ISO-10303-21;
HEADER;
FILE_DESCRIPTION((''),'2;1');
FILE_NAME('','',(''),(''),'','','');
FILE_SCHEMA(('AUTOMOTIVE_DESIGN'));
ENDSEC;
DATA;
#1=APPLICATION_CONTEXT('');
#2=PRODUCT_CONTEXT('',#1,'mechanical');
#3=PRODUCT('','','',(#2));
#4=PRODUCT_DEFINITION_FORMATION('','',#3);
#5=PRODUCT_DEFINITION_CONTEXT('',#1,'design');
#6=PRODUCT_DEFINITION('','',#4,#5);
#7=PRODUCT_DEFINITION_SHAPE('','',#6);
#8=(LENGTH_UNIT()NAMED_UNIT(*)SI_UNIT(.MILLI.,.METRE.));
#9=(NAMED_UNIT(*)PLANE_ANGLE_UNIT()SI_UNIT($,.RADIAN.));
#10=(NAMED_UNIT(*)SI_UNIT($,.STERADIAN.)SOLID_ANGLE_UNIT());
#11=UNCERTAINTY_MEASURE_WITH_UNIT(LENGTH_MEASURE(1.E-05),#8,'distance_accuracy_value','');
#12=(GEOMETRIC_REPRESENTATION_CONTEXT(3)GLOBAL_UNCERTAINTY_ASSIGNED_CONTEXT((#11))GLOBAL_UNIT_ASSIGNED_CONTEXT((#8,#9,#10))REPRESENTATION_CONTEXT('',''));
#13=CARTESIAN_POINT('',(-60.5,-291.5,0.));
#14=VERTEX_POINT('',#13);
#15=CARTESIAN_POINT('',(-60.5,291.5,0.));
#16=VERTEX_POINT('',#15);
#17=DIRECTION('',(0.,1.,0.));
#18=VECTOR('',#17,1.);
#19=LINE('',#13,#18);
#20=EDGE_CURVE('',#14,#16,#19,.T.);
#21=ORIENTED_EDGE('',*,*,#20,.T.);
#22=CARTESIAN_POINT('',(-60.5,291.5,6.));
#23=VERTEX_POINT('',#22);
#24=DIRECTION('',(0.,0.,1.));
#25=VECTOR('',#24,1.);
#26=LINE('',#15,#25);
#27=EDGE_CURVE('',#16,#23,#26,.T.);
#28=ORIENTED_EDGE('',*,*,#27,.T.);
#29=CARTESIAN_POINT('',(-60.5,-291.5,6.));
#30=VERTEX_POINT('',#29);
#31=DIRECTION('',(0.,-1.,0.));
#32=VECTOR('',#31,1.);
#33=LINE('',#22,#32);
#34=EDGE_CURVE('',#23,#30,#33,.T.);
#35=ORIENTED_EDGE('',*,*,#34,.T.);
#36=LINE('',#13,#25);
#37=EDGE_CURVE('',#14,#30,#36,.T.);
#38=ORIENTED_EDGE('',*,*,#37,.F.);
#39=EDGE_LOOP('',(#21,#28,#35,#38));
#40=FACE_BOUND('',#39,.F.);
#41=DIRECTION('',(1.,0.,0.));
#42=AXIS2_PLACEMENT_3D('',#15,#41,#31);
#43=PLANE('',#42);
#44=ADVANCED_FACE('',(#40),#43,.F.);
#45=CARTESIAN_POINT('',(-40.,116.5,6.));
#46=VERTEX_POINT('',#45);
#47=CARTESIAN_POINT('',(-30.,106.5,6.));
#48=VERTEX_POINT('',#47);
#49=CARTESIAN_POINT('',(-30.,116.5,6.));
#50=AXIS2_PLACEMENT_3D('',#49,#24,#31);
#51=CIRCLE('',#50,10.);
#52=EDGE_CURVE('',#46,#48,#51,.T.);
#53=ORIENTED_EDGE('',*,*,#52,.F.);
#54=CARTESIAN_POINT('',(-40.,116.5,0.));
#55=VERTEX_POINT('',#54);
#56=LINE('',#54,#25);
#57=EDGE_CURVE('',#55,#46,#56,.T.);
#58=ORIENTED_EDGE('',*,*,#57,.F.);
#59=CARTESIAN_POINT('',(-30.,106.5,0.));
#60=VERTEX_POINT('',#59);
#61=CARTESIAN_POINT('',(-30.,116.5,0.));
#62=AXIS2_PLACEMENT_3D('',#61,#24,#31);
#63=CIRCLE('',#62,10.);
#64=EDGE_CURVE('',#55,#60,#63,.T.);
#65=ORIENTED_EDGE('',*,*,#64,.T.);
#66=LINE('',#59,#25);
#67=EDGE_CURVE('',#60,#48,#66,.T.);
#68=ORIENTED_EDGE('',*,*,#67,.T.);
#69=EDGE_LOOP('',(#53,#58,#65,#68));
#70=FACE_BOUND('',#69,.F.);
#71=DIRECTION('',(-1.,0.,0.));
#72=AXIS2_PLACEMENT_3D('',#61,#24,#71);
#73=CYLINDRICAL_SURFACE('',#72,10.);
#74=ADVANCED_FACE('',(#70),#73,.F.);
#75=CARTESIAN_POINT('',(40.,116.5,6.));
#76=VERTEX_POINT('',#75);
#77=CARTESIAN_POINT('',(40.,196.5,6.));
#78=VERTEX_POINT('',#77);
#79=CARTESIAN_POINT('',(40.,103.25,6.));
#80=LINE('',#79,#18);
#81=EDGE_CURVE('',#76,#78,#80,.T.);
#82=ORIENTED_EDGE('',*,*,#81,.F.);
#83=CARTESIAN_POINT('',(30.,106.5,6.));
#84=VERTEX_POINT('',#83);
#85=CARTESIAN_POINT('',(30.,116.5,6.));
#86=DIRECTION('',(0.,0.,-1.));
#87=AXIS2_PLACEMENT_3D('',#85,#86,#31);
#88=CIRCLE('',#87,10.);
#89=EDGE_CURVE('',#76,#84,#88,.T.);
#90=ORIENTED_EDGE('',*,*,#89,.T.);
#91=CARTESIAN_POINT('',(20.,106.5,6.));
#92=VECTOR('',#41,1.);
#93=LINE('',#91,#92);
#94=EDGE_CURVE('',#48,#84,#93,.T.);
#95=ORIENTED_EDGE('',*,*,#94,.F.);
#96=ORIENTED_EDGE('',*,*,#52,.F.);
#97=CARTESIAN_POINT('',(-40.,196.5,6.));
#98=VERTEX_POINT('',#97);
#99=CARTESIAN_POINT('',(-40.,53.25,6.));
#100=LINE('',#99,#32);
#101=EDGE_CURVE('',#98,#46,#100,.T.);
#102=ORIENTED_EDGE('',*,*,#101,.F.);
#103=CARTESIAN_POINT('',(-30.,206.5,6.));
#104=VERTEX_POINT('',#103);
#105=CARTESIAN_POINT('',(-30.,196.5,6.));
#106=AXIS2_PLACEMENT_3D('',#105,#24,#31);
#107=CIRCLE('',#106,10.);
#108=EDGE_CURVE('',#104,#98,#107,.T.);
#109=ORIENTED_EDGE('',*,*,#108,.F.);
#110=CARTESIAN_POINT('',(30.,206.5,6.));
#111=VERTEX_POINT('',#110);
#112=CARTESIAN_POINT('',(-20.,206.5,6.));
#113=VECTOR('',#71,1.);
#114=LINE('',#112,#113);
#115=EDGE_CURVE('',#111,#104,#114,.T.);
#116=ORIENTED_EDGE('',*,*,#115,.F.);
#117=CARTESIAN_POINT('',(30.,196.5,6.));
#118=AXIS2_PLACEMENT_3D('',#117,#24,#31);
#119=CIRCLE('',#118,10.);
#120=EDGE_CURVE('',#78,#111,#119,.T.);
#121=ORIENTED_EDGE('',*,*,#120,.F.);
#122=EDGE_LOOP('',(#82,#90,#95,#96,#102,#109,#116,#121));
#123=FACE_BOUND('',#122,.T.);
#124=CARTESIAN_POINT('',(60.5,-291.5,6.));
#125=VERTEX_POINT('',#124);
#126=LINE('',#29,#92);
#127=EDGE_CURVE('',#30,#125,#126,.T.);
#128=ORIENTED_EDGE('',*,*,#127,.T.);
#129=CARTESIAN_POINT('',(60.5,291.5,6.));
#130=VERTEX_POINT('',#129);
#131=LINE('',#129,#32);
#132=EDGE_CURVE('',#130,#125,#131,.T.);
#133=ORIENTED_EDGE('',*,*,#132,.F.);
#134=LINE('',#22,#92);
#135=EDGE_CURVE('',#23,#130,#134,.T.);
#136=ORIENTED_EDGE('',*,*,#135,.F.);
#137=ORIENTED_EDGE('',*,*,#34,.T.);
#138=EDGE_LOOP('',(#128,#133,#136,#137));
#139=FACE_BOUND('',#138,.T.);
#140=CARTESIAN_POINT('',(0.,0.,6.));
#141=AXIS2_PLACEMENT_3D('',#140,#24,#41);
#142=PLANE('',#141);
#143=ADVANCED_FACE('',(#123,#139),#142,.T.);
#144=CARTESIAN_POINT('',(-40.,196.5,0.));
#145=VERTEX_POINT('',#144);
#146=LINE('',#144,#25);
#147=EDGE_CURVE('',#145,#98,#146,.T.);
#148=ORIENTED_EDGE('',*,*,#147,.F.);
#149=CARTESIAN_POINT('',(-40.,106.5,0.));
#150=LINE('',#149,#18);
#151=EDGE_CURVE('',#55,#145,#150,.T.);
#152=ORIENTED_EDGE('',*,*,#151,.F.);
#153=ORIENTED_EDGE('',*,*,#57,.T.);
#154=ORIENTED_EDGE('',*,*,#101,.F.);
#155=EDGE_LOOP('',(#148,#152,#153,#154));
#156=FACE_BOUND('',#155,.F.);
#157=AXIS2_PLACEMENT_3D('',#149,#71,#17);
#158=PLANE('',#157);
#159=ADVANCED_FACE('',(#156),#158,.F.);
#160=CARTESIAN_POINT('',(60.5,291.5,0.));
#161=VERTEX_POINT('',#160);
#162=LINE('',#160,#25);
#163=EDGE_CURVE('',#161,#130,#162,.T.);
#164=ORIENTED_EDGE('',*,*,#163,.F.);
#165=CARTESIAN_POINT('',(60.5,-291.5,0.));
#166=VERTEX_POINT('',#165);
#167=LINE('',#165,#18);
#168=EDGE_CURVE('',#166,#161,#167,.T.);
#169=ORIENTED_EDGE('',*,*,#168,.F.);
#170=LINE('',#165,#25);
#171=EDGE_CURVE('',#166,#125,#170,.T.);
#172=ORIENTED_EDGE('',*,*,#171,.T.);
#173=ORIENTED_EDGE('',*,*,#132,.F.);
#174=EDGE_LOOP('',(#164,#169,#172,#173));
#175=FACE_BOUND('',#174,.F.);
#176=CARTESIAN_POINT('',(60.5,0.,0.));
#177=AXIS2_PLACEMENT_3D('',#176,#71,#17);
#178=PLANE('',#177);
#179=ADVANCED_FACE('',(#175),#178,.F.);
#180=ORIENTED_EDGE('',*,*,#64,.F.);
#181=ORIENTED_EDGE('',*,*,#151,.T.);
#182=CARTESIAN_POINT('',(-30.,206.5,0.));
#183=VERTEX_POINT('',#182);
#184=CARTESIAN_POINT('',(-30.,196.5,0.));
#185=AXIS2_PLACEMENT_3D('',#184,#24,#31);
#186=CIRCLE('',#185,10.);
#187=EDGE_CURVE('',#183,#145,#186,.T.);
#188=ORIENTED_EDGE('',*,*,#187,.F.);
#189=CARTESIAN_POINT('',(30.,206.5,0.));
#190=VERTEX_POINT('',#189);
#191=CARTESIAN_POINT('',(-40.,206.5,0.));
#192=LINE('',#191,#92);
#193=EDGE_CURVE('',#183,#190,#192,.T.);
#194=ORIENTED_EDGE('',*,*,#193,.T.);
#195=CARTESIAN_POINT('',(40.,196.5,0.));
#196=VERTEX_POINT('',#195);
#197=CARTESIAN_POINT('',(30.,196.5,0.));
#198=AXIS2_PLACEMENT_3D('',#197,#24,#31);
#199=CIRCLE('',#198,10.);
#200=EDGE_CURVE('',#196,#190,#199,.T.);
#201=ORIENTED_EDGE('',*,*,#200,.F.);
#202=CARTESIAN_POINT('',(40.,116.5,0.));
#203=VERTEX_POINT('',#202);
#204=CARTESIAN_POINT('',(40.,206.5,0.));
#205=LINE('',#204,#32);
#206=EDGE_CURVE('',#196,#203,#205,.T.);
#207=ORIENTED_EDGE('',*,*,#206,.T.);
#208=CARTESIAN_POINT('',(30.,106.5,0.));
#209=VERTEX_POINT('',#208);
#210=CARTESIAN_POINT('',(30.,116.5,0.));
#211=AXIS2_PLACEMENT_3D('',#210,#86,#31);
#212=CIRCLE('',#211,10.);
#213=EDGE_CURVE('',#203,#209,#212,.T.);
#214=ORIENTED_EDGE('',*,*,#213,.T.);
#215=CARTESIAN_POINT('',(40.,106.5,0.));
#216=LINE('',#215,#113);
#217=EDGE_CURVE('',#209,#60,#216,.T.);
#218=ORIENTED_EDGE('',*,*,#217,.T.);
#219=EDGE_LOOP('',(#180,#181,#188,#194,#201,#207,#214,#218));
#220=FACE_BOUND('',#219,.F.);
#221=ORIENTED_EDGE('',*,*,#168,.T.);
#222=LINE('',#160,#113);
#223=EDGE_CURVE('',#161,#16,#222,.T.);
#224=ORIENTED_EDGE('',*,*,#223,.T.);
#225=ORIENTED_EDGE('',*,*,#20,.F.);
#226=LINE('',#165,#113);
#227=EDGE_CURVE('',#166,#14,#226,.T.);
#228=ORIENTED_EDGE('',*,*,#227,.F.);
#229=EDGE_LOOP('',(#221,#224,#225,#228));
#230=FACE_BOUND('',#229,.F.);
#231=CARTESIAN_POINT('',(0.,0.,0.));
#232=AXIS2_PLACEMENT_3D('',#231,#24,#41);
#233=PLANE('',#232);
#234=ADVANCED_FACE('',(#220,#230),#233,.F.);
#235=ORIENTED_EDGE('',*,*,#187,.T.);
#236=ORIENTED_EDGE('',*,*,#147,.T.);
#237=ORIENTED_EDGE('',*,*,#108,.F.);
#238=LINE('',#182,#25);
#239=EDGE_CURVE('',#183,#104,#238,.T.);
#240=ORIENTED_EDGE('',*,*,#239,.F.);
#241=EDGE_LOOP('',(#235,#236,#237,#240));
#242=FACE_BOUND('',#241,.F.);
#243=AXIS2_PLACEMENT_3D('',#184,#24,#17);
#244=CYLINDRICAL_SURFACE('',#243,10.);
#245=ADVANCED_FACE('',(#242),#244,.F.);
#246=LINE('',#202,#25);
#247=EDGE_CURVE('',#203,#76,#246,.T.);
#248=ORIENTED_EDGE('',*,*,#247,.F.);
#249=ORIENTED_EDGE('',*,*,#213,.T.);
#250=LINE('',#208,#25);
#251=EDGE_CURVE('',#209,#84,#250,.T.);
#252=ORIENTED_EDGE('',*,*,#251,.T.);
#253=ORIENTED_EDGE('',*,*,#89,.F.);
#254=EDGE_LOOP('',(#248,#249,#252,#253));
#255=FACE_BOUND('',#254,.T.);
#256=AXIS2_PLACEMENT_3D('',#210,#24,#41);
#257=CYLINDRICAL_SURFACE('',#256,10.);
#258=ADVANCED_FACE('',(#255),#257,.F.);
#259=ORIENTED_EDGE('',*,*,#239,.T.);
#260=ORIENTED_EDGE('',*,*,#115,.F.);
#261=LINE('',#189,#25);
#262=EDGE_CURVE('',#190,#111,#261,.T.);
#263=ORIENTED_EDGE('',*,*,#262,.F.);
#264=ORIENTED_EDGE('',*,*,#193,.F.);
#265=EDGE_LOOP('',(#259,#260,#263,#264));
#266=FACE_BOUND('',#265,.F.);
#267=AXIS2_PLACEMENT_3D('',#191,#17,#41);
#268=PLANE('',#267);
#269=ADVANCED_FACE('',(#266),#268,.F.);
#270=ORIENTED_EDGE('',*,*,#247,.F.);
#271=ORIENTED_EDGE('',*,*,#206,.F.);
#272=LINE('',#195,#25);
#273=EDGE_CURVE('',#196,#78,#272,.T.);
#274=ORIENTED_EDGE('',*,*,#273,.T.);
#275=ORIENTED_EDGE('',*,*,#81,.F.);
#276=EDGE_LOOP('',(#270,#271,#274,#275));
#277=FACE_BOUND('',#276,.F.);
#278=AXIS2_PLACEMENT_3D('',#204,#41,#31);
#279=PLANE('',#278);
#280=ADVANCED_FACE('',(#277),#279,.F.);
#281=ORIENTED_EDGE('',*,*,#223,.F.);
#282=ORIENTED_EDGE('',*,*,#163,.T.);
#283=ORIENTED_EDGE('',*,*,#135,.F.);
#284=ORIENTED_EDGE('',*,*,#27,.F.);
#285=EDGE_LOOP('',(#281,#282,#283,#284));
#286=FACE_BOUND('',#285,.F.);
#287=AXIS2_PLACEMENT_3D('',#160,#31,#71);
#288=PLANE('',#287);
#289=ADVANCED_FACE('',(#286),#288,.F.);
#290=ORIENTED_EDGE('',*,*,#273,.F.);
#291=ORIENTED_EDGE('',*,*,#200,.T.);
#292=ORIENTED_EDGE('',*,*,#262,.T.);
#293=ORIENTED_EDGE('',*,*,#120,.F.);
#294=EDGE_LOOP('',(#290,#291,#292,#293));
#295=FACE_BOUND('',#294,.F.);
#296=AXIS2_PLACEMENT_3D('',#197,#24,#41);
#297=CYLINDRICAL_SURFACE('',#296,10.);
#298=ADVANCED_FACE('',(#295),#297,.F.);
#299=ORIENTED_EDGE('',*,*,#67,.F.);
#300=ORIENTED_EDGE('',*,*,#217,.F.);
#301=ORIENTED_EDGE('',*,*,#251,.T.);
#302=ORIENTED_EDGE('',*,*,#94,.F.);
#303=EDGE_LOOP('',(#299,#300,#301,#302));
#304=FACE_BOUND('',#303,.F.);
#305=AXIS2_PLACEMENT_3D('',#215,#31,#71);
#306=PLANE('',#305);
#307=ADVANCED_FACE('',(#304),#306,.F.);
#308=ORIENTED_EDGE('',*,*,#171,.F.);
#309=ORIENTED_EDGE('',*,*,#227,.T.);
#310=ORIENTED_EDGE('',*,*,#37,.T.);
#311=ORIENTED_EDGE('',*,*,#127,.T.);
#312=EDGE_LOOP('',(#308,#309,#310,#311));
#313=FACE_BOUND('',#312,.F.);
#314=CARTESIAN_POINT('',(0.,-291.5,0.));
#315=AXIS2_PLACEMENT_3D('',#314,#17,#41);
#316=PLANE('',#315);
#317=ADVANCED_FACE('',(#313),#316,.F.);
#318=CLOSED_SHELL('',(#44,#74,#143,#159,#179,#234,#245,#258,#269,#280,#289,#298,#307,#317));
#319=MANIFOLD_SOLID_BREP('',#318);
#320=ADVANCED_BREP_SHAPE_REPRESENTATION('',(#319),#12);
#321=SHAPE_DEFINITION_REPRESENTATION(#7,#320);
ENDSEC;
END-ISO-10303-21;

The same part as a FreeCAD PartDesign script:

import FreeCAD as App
import Part
import Sketcher
from FreeCAD import Vector
Q = App.Units.Quantity


def edges_at(feature, points):
    """Names of the edges that pass closest to the given points."""
    edges = feature.Shape.Edges
    near = lambda p: min(range(len(edges)), key=lambda i: edges[i].distToShape(Part.Vertex(*p))[0])
    return sorted({f"Edge{near(p) + 1}" for p in points})


def add_polygon(sketch, points):
    """Adds a closed chain of lines whose ends are joined by coincident constraints."""
    first, n = sketch.GeometryCount, len(points)
    for a, b in zip(points, points[1:] + points[:1]):
        sketch.addGeometry(Part.LineSegment(App.Vector(*a, 0), App.Vector(*b, 0)), False)
    for i in range(n):
        sketch.addConstraint(Sketcher.Constraint("Coincident", first + i, 2, first + (i + 1) % n, 1))

doc = App.newDocument("Part")
body = doc.addObject("PartDesign::Body", "Body")

sketch1 = body.newObject("Sketcher::SketchObject", "Sketch")
sketch1.AttachmentSupport = (doc.getObject("XY_Plane"), [""])
sketch1.MapMode = "FlatFace"
add_polygon(sketch1, [(60, 292), (-60, 292), (-60, -292), (60, -292)])
sketch1.addConstraint([
    Sketcher.Constraint("Horizontal", 0),
    Sketcher.Constraint("Vertical", 1),
    Sketcher.Constraint("Horizontal", 2),
    Sketcher.Constraint("Vertical", 3),
    Sketcher.Constraint("Symmetric", 0, 2, 2, 2, -1, 1),
    Sketcher.Constraint("DistanceX", 0, 2, 0, 1, Q("121 mm")),
    Sketcher.Constraint("DistanceY", 1, 2, 1, 1, Q("583 mm")),
])
pad1 = body.newObject("PartDesign::Pad", "Pad")
pad1.Profile = sketch1
pad1.Length = 6

sketch2 = body.newObject("Sketcher::SketchObject", "Sketch001")
sketch2.AttachmentSupport = (doc.getObject("XY_Plane"), [""])
sketch2.MapMode = "FlatFace"
add_polygon(sketch2, [(40, 206), (40, 106), (-40, 106), (-40, 206)])
sketch2.addConstraint([
    Sketcher.Constraint("Vertical", 0),
    Sketcher.Constraint("Horizontal", 1),
    Sketcher.Constraint("Vertical", 2),
    Sketcher.Constraint("Horizontal", 3),
    Sketcher.Constraint("DistanceX", 1, 2, 1, 1, Q("80 mm")),
    Sketcher.Constraint("DistanceY", 0, 2, 0, 1, Q("100 mm")),
    Sketcher.Constraint("DistanceX", -1, 1, 0, 2, Q("40 mm")),
    Sketcher.Constraint("DistanceY", -1, 1, 0, 2, Q("106.5 mm")),
])
pocket1 = body.newObject("PartDesign::Pocket", "Pocket")
pocket1.Profile = sketch2
pocket1.Type = "ThroughAll"
pocket1.Reversed = True
doc.recompute()

fillet = body.newObject("PartDesign::Fillet", "Fillet")
fillet.Base = (pocket1, edges_at(pocket1, [
    (-40, 106.5, 3),
    (-40, 206.5, 3),
    (40, 206.5, 3),
    (40, 106.5, 3),
]))
fillet.Radius = 10

doc.recompute()
